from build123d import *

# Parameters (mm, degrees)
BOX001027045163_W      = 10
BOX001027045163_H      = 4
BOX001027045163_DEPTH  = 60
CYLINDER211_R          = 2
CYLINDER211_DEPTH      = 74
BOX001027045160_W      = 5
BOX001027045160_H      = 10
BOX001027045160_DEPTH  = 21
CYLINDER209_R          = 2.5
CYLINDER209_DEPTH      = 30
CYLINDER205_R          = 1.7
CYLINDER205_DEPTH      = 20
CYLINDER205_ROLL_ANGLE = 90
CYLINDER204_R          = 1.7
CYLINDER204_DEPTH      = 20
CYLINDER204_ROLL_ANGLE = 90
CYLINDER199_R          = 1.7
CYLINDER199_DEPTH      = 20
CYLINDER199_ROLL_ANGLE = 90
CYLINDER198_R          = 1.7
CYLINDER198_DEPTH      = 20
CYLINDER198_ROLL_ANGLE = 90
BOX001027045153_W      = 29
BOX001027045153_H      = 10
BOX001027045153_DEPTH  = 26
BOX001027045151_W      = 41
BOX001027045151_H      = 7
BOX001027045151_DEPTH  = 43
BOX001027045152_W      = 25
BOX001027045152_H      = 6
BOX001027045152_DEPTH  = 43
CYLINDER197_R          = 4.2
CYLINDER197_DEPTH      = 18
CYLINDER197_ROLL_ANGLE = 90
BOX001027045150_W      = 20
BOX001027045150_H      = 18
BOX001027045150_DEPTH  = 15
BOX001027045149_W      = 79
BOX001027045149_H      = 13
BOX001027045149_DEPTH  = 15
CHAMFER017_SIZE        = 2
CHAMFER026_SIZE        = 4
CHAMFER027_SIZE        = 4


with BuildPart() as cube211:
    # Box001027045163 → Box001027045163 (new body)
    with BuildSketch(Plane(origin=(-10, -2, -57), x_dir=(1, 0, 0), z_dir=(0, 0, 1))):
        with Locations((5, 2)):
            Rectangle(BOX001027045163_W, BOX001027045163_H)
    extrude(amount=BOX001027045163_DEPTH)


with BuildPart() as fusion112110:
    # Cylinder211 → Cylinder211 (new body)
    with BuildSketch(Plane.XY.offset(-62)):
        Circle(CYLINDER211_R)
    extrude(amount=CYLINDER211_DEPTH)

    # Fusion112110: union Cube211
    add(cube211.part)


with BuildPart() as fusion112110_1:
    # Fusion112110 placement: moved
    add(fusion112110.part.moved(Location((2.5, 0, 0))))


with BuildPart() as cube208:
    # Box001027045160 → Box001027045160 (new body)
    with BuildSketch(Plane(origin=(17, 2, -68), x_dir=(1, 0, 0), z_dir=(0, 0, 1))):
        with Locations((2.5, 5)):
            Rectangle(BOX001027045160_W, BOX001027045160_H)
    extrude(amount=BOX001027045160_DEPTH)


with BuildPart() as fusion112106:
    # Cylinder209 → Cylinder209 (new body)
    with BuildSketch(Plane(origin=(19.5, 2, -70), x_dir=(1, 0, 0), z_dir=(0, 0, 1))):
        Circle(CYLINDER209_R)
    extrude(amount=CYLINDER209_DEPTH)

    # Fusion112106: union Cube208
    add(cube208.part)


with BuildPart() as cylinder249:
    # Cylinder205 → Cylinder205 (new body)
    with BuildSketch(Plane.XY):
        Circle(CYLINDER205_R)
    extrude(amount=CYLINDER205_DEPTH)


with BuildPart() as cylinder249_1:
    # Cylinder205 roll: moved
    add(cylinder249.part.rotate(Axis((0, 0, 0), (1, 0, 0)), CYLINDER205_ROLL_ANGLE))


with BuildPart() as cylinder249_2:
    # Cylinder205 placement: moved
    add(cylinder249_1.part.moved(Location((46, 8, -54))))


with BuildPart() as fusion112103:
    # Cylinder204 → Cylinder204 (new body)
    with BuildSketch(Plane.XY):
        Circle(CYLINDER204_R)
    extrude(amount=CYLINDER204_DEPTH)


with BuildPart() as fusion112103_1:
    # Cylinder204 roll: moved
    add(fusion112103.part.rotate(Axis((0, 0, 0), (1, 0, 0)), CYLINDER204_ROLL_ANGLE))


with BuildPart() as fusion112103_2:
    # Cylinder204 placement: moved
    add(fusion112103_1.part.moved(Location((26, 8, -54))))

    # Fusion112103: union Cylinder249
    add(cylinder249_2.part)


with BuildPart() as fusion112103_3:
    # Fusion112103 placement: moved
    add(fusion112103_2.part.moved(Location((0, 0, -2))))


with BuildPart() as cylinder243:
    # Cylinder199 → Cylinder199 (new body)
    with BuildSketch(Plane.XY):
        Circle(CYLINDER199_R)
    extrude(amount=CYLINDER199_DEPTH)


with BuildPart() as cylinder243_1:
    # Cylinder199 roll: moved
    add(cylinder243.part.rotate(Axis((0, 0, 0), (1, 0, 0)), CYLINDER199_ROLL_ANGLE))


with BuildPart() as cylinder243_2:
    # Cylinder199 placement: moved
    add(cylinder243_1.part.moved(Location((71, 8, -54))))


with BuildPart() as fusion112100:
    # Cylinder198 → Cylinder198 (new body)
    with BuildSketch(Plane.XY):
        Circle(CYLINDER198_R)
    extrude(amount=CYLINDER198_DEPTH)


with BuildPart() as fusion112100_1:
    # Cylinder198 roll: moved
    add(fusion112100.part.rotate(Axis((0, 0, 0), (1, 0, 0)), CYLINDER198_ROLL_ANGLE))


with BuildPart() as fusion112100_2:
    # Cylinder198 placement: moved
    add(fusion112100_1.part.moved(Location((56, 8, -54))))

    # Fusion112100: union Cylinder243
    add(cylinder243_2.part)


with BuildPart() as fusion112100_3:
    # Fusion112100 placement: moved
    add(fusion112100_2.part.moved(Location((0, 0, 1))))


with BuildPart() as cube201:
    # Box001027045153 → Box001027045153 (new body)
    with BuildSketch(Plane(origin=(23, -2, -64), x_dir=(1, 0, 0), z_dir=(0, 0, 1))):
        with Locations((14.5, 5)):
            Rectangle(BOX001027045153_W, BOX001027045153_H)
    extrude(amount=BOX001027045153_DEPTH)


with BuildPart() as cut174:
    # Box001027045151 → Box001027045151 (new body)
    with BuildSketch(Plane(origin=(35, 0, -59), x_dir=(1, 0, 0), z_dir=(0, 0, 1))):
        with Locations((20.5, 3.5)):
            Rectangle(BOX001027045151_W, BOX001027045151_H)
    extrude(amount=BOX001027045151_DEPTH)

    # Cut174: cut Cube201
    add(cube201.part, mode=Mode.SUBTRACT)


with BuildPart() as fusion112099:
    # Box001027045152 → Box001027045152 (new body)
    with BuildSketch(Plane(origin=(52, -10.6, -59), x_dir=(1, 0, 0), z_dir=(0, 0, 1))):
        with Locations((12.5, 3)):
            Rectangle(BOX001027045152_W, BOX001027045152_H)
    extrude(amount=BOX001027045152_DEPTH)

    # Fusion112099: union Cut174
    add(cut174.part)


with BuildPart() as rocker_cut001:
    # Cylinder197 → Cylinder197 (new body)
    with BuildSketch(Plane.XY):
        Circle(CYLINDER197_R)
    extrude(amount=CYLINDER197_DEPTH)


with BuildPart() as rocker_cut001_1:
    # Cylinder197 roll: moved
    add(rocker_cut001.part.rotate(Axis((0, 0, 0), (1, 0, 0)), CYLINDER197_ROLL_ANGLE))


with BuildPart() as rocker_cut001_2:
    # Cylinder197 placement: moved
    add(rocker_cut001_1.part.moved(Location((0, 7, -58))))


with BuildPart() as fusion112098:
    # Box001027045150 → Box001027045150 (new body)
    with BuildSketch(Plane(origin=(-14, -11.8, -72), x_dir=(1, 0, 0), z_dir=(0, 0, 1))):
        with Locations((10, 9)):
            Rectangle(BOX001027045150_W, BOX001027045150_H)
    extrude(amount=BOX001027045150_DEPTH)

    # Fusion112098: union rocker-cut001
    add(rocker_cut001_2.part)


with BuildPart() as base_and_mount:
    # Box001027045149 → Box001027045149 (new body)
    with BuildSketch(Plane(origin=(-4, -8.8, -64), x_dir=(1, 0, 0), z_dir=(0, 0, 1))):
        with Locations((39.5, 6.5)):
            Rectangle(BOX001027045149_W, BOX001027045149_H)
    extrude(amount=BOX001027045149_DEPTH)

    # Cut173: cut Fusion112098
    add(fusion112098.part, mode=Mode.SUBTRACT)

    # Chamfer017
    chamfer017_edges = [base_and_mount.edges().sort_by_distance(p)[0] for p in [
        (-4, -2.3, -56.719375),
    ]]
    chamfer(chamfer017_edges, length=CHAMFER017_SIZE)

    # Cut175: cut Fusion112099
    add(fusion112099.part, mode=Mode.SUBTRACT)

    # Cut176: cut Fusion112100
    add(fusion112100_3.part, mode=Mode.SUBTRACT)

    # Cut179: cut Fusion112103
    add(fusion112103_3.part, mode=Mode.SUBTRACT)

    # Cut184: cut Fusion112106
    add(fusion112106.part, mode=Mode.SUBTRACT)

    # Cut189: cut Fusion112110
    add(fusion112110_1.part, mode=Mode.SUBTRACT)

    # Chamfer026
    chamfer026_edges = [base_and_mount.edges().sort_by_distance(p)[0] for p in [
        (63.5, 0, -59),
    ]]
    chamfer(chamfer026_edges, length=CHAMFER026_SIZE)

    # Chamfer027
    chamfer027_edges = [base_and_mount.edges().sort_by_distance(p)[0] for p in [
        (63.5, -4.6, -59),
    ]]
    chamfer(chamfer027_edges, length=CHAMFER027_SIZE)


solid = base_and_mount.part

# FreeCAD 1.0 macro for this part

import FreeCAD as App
import Part
import Sketcher

V = App.Vector
Q = App.Units.Quantity


def edges_at(feature, points):
    """Names of the edges that pass closest to the given points."""
    edges = feature.Shape.Edges
    near = lambda p: min(range(len(edges)), key=lambda i: edges[i].distToShape(Part.Vertex(*p))[0])
    return sorted({f"Edge{near(p) + 1}" for p in points})


def add_polygon(sketch, points):
    """Adds a closed chain of lines whose ends are joined by coincident constraints."""
    first, n = sketch.GeometryCount, len(points)
    for a, b in zip(points, points[1:] + points[:1]):
        sketch.addGeometry(Part.LineSegment(App.Vector(*a, 0), App.Vector(*b, 0)), False)
    for i in range(n):
        sketch.addConstraint(Sketcher.Constraint("Coincident", first + i, 2, first + (i + 1) % n, 1))

doc = App.newDocument("Part")
body = doc.addObject("PartDesign::Body", "Body")

# Sketch on XY plane
sketch1 = body.newObject("Sketcher::SketchObject", "Sketch")
sketch1.AttachmentSupport = (doc.getObject("XY_Plane"), [""])
sketch1.MapMode = "FlatFace"
sketch1.AttachmentOffset = App.Placement(V(0, 0, -57), App.Rotation())
add_polygon(sketch1, [(-10, 2), (-10, -2), (0, -2), (0, 2)])  # lines 0-3
sketch1.addConstraint([
    Sketcher.Constraint("Vertical", 0),
    Sketcher.Constraint("Horizontal", 1),
    Sketcher.Constraint("Vertical", 2),
    Sketcher.Constraint("Horizontal", 3),
    Sketcher.Constraint("Symmetric", 1, 2, 2, 2, -1, 1),
    Sketcher.Constraint("DistanceX", 1, 1, 1, 2, Q("10 mm")),
    Sketcher.Constraint("DistanceY", 0, 2, 0, 1, Q("4 mm")),
])
pad1 = body.newObject("PartDesign::Pad", "Pad")
pad1.Profile = sketch1
pad1.Length = 60
body2 = doc.addObject("PartDesign::Body", "Body001")

# Sketch on XY plane
sketch2 = body2.newObject("Sketcher::SketchObject", "Sketch001")
sketch2.AttachmentSupport = (doc.getObject("XY_Plane001"), [""])
sketch2.MapMode = "FlatFace"
sketch2.AttachmentOffset = App.Placement(V(0, 0, -62), App.Rotation())
sketch2.addGeometry(Part.Circle(V(0, 0, 0), V(0, 0, 1), 2), False)
sketch2.addConstraint([
    Sketcher.Constraint("Coincident", 0, 3, -1, 1),
    Sketcher.Constraint("Diameter", 0, Q("4 mm")),
])
pad2 = body2.newObject("PartDesign::Pad", "Pad001")
pad2.Profile = sketch2
pad2.Length = 74
doc.recompute()

boolean = body2.newObject("PartDesign::Boolean", "Boolean")
boolean.Type = "Fuse"
boolean.addObjects([body])
body3 = doc.addObject("PartDesign::Body", "Body002")
doc.recompute()

body2.Placement = App.Placement(V(2.5, 0, 0), App.Rotation(V(0, 0, 1), 0))
boolean2 = body3.newObject("PartDesign::Boolean", "Boolean001")
boolean2.Type = "Fuse"
boolean2.addObjects([body2])
body4 = doc.addObject("PartDesign::Body", "Body003")

# Sketch on XY plane
sketch3 = body4.newObject("Sketcher::SketchObject", "Sketch002")
sketch3.AttachmentSupport = (doc.getObject("XY_Plane003"), [""])
sketch3.MapMode = "FlatFace"
sketch3.AttachmentOffset = App.Placement(V(0, 0, -68), App.Rotation())
add_polygon(sketch3, [(17, 12), (17, 2), (22, 2), (22, 12)])  # lines 0-3
sketch3.addConstraint([
    Sketcher.Constraint("Vertical", 0),
    Sketcher.Constraint("Horizontal", 1),
    Sketcher.Constraint("Vertical", 2),
    Sketcher.Constraint("Horizontal", 3),
    Sketcher.Constraint("DistanceX", 1, 1, 1, 2, Q("5 mm")),
    Sketcher.Constraint("DistanceY", 0, 2, 0, 1, Q("10 mm")),
    Sketcher.Constraint("DistanceX", -1, 1, 0, 2, Q("17 mm")),
    Sketcher.Constraint("DistanceY", -1, 1, 0, 2, Q("2 mm")),
])
pad3 = body4.newObject("PartDesign::Pad", "Pad002")
pad3.Profile = sketch3
pad3.Length = 21
body5 = doc.addObject("PartDesign::Body", "Body004")

# Sketch on XY plane
sketch4 = body5.newObject("Sketcher::SketchObject", "Sketch003")
sketch4.AttachmentSupport = (doc.getObject("XY_Plane004"), [""])
sketch4.MapMode = "FlatFace"
sketch4.AttachmentOffset = App.Placement(V(0, 0, -70), App.Rotation())
sketch4.addGeometry(Part.Circle(V(19.5, 2, 0), V(0, 0, 1), 2.5), False)
sketch4.addConstraint([
    Sketcher.Constraint("Diameter", 0, Q("5 mm")),
    Sketcher.Constraint("DistanceY", -1, 1, 0, 3, Q("2 mm")),
    Sketcher.Constraint("DistanceX", -1, 1, 0, 3, Q("19.5 mm")),
])
pad4 = body5.newObject("PartDesign::Pad", "Pad003")
pad4.Profile = sketch4
pad4.Length = 30
doc.recompute()

boolean3 = body5.newObject("PartDesign::Boolean", "Boolean002")
boolean3.Type = "Fuse"
boolean3.addObjects([body4])
body6 = doc.addObject("PartDesign::Body", "Body005")

# Sketch on XY plane
sketch5 = body6.newObject("Sketcher::SketchObject", "Sketch004")
sketch5.AttachmentSupport = (doc.getObject("XY_Plane005"), [""])
sketch5.MapMode = "FlatFace"
sketch5.addGeometry(Part.Circle(V(0, 0, 0), V(0, 0, 1), 1.7), False)
sketch5.addConstraint([
    Sketcher.Constraint("Coincident", 0, 3, -1, 1),
    Sketcher.Constraint("Diameter", 0, Q("3.4 mm")),
])
pad5 = body6.newObject("PartDesign::Pad", "Pad004")
pad5.Profile = sketch5
pad5.Length = 20
body7 = doc.addObject("PartDesign::Body", "Body006")
doc.recompute()

body6.Placement = App.Placement(V(0, 0, 0), App.Rotation(V(1, 0, 0), 90))
boolean4 = body7.newObject("PartDesign::Boolean", "Boolean003")
boolean4.Type = "Fuse"
boolean4.addObjects([body6])
body8 = doc.addObject("PartDesign::Body", "Body007")
doc.recompute()

body7.Placement = App.Placement(V(46, 8, -54), App.Rotation(V(0, 0, 1), 0))
boolean5 = body8.newObject("PartDesign::Boolean", "Boolean004")
boolean5.Type = "Fuse"
boolean5.addObjects([body7])
body9 = doc.addObject("PartDesign::Body", "Body008")

# Sketch on XY plane
sketch6 = body9.newObject("Sketcher::SketchObject", "Sketch005")
sketch6.AttachmentSupport = (doc.getObject("XY_Plane008"), [""])
sketch6.MapMode = "FlatFace"
sketch6.addGeometry(Part.Circle(V(0, 0, 0), V(0, 0, 1), 1.7), False)
sketch6.addConstraint([
    Sketcher.Constraint("Coincident", 0, 3, -1, 1),
    Sketcher.Constraint("Diameter", 0, Q("3.4 mm")),
])
pad6 = body9.newObject("PartDesign::Pad", "Pad005")
pad6.Profile = sketch6
pad6.Length = 20
body10 = doc.addObject("PartDesign::Body", "Body009")
doc.recompute()

body9.Placement = App.Placement(V(0, 0, 0), App.Rotation(V(1, 0, 0), 90))
boolean6 = body10.newObject("PartDesign::Boolean", "Boolean005")
boolean6.Type = "Fuse"
boolean6.addObjects([body9])
body11 = doc.addObject("PartDesign::Body", "Body010")
body11.AllowCompound = True
doc.recompute()

body10.Placement = App.Placement(V(26, 8, -54), App.Rotation(V(0, 0, 1), 0))
boolean7 = body11.newObject("PartDesign::Boolean", "Boolean006")
boolean7.Type = "Fuse"
boolean7.addObjects([body10])
doc.recompute()

boolean8 = body11.newObject("PartDesign::Boolean", "Boolean007")
boolean8.Type = "Fuse"
boolean8.addObjects([body8])
body12 = doc.addObject("PartDesign::Body", "Body011")
body12.AllowCompound = True
doc.recompute()

body11.Placement = App.Placement(V(0, 0, -2), App.Rotation(V(0, 0, 1), 0))
boolean9 = body12.newObject("PartDesign::Boolean", "Boolean008")
boolean9.Type = "Fuse"
boolean9.addObjects([body11])
body13 = doc.addObject("PartDesign::Body", "Body012")

# Sketch on XY plane
sketch7 = body13.newObject("Sketcher::SketchObject", "Sketch006")
sketch7.AttachmentSupport = (doc.getObject("XY_Plane012"), [""])
sketch7.MapMode = "FlatFace"
sketch7.addGeometry(Part.Circle(V(0, 0, 0), V(0, 0, 1), 1.7), False)
sketch7.addConstraint([
    Sketcher.Constraint("Coincident", 0, 3, -1, 1),
    Sketcher.Constraint("Diameter", 0, Q("3.4 mm")),
])
pad7 = body13.newObject("PartDesign::Pad", "Pad006")
pad7.Profile = sketch7
pad7.Length = 20
body14 = doc.addObject("PartDesign::Body", "Body013")
doc.recompute()

body13.Placement = App.Placement(V(0, 0, 0), App.Rotation(V(1, 0, 0), 90))
boolean10 = body14.newObject("PartDesign::Boolean", "Boolean009")
boolean10.Type = "Fuse"
boolean10.addObjects([body13])
body15 = doc.addObject("PartDesign::Body", "Body014")
doc.recompute()

body14.Placement = App.Placement(V(71, 8, -54), App.Rotation(V(0, 0, 1), 0))
boolean11 = body15.newObject("PartDesign::Boolean", "Boolean010")
boolean11.Type = "Fuse"
boolean11.addObjects([body14])
body16 = doc.addObject("PartDesign::Body", "Body015")

# Sketch on XY plane
sketch8 = body16.newObject("Sketcher::SketchObject", "Sketch007")
sketch8.AttachmentSupport = (doc.getObject("XY_Plane015"), [""])
sketch8.MapMode = "FlatFace"
sketch8.addGeometry(Part.Circle(V(0, 0, 0), V(0, 0, 1), 1.7), False)
sketch8.addConstraint([
    Sketcher.Constraint("Coincident", 0, 3, -1, 1),
    Sketcher.Constraint("Diameter", 0, Q("3.4 mm")),
])
pad8 = body16.newObject("PartDesign::Pad", "Pad007")
pad8.Profile = sketch8
pad8.Length = 20
body17 = doc.addObject("PartDesign::Body", "Body016")
doc.recompute()

body16.Placement = App.Placement(V(0, 0, 0), App.Rotation(V(1, 0, 0), 90))
boolean12 = body17.newObject("PartDesign::Boolean", "Boolean011")
boolean12.Type = "Fuse"
boolean12.addObjects([body16])
body18 = doc.addObject("PartDesign::Body", "Body017")
body18.AllowCompound = True
doc.recompute()

body17.Placement = App.Placement(V(56, 8, -54), App.Rotation(V(0, 0, 1), 0))
boolean13 = body18.newObject("PartDesign::Boolean", "Boolean012")
boolean13.Type = "Fuse"
boolean13.addObjects([body17])
doc.recompute()

boolean14 = body18.newObject("PartDesign::Boolean", "Boolean013")
boolean14.Type = "Fuse"
boolean14.addObjects([body15])
body19 = doc.addObject("PartDesign::Body", "Body018")
body19.AllowCompound = True
doc.recompute()

body18.Placement = App.Placement(V(0, 0, 1), App.Rotation(V(0, 0, 1), 0))
boolean15 = body19.newObject("PartDesign::Boolean", "Boolean014")
boolean15.Type = "Fuse"
boolean15.addObjects([body18])
body20 = doc.addObject("PartDesign::Body", "Body019")

# Sketch on XY plane
sketch9 = body20.newObject("Sketcher::SketchObject", "Sketch008")
sketch9.AttachmentSupport = (doc.getObject("XY_Plane019"), [""])
sketch9.MapMode = "FlatFace"
sketch9.AttachmentOffset = App.Placement(V(0, 0, -64), App.Rotation())
add_polygon(sketch9, [(23, 8), (23, -2), (52, -2), (52, 8)])  # lines 0-3
sketch9.addConstraint([
    Sketcher.Constraint("Vertical", 0),
    Sketcher.Constraint("Horizontal", 1),
    Sketcher.Constraint("Vertical", 2),
    Sketcher.Constraint("Horizontal", 3),
    Sketcher.Constraint("DistanceX", 1, 1, 1, 2, Q("29 mm")),
    Sketcher.Constraint("DistanceY", 0, 2, 0, 1, Q("10 mm")),
    Sketcher.Constraint("DistanceX", -1, 1, 0, 2, Q("23 mm")),
    Sketcher.Constraint("DistanceY", 0, 2, -1, 1, Q("2 mm")),
])
pad9 = body20.newObject("PartDesign::Pad", "Pad008")
pad9.Profile = sketch9
pad9.Length = 26
body21 = doc.addObject("PartDesign::Body", "Body020")

# Sketch on XY plane
sketch10 = body21.newObject("Sketcher::SketchObject", "Sketch009")
sketch10.AttachmentSupport = (doc.getObject("XY_Plane020"), [""])
sketch10.MapMode = "FlatFace"
sketch10.AttachmentOffset = App.Placement(V(0, 0, -59), App.Rotation())
add_polygon(sketch10, [(35, 7), (35, 0), (76, 0), (76, 7)])  # lines 0-3
sketch10.addConstraint([
    Sketcher.Constraint("Vertical", 0),
    Sketcher.Constraint("Horizontal", 1),
    Sketcher.Constraint("Vertical", 2),
    Sketcher.Constraint("Horizontal", 3),
    Sketcher.Constraint("PointOnObject", 0, 2, -1),
    Sketcher.Constraint("DistanceX", 1, 1, 1, 2, Q("41 mm")),
    Sketcher.Constraint("DistanceY", 0, 2, 0, 1, Q("7 mm")),
    Sketcher.Constraint("DistanceX", -1, 1, 0, 2, Q("35 mm")),
])
pad10 = body21.newObject("PartDesign::Pad", "Pad009")
pad10.Profile = sketch10
pad10.Length = 43
doc.recompute()

boolean16 = body21.newObject("PartDesign::Boolean", "Boolean015")
boolean16.Type = "Cut"
boolean16.addObjects([body20])
body22 = doc.addObject("PartDesign::Body", "Body021")
body22.AllowCompound = True

# Sketch on XY plane
sketch11 = body22.newObject("Sketcher::SketchObject", "Sketch010")
sketch11.AttachmentSupport = (doc.getObject("XY_Plane021"), [""])
sketch11.MapMode = "FlatFace"
sketch11.AttachmentOffset = App.Placement(V(0, 0, -59), App.Rotation())
add_polygon(sketch11, [(52, -5), (52, -11), (77, -11), (77, -5)])  # lines 0-3
sketch11.addConstraint([
    Sketcher.Constraint("Vertical", 0),
    Sketcher.Constraint("Horizontal", 1),
    Sketcher.Constraint("Vertical", 2),
    Sketcher.Constraint("Horizontal", 3),
    Sketcher.Constraint("DistanceX", 1, 1, 1, 2, Q("25 mm")),
    Sketcher.Constraint("DistanceY", 0, 2, 0, 1, Q("6 mm")),
    Sketcher.Constraint("DistanceX", -1, 1, 0, 2, Q("52 mm")),
    Sketcher.Constraint("DistanceY", 0, 2, -1, 1, Q("10.6 mm")),
])
pad11 = body22.newObject("PartDesign::Pad", "Pad010")
pad11.Profile = sketch11
pad11.Length = 43
doc.recompute()

boolean17 = body22.newObject("PartDesign::Boolean", "Boolean016")
boolean17.Type = "Fuse"
boolean17.addObjects([body21])
body23 = doc.addObject("PartDesign::Body", "Body022")

# Sketch on XY plane
sketch12 = body23.newObject("Sketcher::SketchObject", "Sketch011")
sketch12.AttachmentSupport = (doc.getObject("XY_Plane022"), [""])
sketch12.MapMode = "FlatFace"
sketch12.addGeometry(Part.Circle(V(0, 0, 0), V(0, 0, 1), 4.2), False)
sketch12.addConstraint([
    Sketcher.Constraint("Coincident", 0, 3, -1, 1),
    Sketcher.Constraint("Diameter", 0, Q("8.4 mm")),
])
pad12 = body23.newObject("PartDesign::Pad", "Pad011")
pad12.Profile = sketch12
pad12.Length = 18
body24 = doc.addObject("PartDesign::Body", "Body023")
doc.recompute()

body23.Placement = App.Placement(V(0, 0, 0), App.Rotation(V(1, 0, 0), 90))
boolean18 = body24.newObject("PartDesign::Boolean", "Boolean017")
boolean18.Type = "Fuse"
boolean18.addObjects([body23])
body25 = doc.addObject("PartDesign::Body", "Body024")
doc.recompute()

body24.Placement = App.Placement(V(0, 7, -58), App.Rotation(V(0, 0, 1), 0))
boolean19 = body25.newObject("PartDesign::Boolean", "Boolean018")
boolean19.Type = "Fuse"
boolean19.addObjects([body24])
body26 = doc.addObject("PartDesign::Body", "Body025")

# Sketch on XY plane
sketch13 = body26.newObject("Sketcher::SketchObject", "Sketch012")
sketch13.AttachmentSupport = (doc.getObject("XY_Plane025"), [""])
sketch13.MapMode = "FlatFace"
sketch13.AttachmentOffset = App.Placement(V(0, 0, -72), App.Rotation())
add_polygon(sketch13, [(-14, 6), (-14, -12), (6, -12), (6, 6)])  # lines 0-3
sketch13.addConstraint([
    Sketcher.Constraint("Vertical", 0),
    Sketcher.Constraint("Horizontal", 1),
    Sketcher.Constraint("Vertical", 2),
    Sketcher.Constraint("Horizontal", 3),
    Sketcher.Constraint("DistanceX", 1, 1, 1, 2, Q("20 mm")),
    Sketcher.Constraint("DistanceY", 0, 2, 0, 1, Q("18 mm")),
    Sketcher.Constraint("DistanceX", 0, 2, -1, 1, Q("14 mm")),
    Sketcher.Constraint("DistanceY", 0, 2, -1, 1, Q("11.8 mm")),
])
pad13 = body26.newObject("PartDesign::Pad", "Pad012")
pad13.Profile = sketch13
pad13.Length = 15
doc.recompute()

boolean20 = body26.newObject("PartDesign::Boolean", "Boolean019")
boolean20.Type = "Fuse"
boolean20.addObjects([body25])
body27 = doc.addObject("PartDesign::Body", "Body026")

# Sketch on XY plane
sketch14 = body27.newObject("Sketcher::SketchObject", "Sketch013")
sketch14.AttachmentSupport = (doc.getObject("XY_Plane026"), [""])
sketch14.MapMode = "FlatFace"
sketch14.AttachmentOffset = App.Placement(V(0, 0, -64), App.Rotation())
add_polygon(sketch14, [(-4, 4), (-4, -9), (75, -9), (75, 4)])  # lines 0-3
sketch14.addConstraint([
    Sketcher.Constraint("Vertical", 0),
    Sketcher.Constraint("Horizontal", 1),
    Sketcher.Constraint("Vertical", 2),
    Sketcher.Constraint("Horizontal", 3),
    Sketcher.Constraint("DistanceX", 1, 1, 1, 2, Q("79 mm")),
    Sketcher.Constraint("DistanceY", 0, 2, 0, 1, Q("13 mm")),
    Sketcher.Constraint("DistanceX", 0, 2, -1, 1, Q("4 mm")),
    Sketcher.Constraint("DistanceY", 0, 2, -1, 1, Q("8.8 mm")),
])
pad14 = body27.newObject("PartDesign::Pad", "Pad013")
pad14.Profile = sketch14
pad14.Length = 15
doc.recompute()

boolean21 = body27.newObject("PartDesign::Boolean", "Boolean020")
boolean21.Type = "Cut"
boolean21.addObjects([body26])
doc.recompute()

chamfer = body27.newObject("PartDesign::Chamfer", "Chamfer")
chamfer.Base = (boolean21, edges_at(boolean21, [(-4, -2.3, -56.719)]))
chamfer.Size = 2
doc.recompute()

boolean22 = body27.newObject("PartDesign::Boolean", "Boolean021")
boolean22.Type = "Cut"
boolean22.addObjects([body22])
doc.recompute()

boolean23 = body27.newObject("PartDesign::Boolean", "Boolean022")
boolean23.Type = "Cut"
boolean23.addObjects([body19])
doc.recompute()

boolean24 = body27.newObject("PartDesign::Boolean", "Boolean023")
boolean24.Type = "Cut"
boolean24.addObjects([body12])
doc.recompute()

boolean25 = body27.newObject("PartDesign::Boolean", "Boolean024")
boolean25.Type = "Cut"
boolean25.addObjects([body5])
doc.recompute()

boolean26 = body27.newObject("PartDesign::Boolean", "Boolean025")
boolean26.Type = "Cut"
boolean26.addObjects([body3])
doc.recompute()

chamfer2 = body27.newObject("PartDesign::Chamfer", "Chamfer001")
chamfer2.Base = (boolean26, edges_at(boolean26, [(63.5, 0, -59)]))
chamfer2.Size = 4
doc.recompute()

chamfer3 = body27.newObject("PartDesign::Chamfer", "Chamfer002")
chamfer3.Base = (chamfer2, edges_at(chamfer2, [(63.5, -4.6, -59)]))
chamfer3.Size = 4

doc.recompute()
